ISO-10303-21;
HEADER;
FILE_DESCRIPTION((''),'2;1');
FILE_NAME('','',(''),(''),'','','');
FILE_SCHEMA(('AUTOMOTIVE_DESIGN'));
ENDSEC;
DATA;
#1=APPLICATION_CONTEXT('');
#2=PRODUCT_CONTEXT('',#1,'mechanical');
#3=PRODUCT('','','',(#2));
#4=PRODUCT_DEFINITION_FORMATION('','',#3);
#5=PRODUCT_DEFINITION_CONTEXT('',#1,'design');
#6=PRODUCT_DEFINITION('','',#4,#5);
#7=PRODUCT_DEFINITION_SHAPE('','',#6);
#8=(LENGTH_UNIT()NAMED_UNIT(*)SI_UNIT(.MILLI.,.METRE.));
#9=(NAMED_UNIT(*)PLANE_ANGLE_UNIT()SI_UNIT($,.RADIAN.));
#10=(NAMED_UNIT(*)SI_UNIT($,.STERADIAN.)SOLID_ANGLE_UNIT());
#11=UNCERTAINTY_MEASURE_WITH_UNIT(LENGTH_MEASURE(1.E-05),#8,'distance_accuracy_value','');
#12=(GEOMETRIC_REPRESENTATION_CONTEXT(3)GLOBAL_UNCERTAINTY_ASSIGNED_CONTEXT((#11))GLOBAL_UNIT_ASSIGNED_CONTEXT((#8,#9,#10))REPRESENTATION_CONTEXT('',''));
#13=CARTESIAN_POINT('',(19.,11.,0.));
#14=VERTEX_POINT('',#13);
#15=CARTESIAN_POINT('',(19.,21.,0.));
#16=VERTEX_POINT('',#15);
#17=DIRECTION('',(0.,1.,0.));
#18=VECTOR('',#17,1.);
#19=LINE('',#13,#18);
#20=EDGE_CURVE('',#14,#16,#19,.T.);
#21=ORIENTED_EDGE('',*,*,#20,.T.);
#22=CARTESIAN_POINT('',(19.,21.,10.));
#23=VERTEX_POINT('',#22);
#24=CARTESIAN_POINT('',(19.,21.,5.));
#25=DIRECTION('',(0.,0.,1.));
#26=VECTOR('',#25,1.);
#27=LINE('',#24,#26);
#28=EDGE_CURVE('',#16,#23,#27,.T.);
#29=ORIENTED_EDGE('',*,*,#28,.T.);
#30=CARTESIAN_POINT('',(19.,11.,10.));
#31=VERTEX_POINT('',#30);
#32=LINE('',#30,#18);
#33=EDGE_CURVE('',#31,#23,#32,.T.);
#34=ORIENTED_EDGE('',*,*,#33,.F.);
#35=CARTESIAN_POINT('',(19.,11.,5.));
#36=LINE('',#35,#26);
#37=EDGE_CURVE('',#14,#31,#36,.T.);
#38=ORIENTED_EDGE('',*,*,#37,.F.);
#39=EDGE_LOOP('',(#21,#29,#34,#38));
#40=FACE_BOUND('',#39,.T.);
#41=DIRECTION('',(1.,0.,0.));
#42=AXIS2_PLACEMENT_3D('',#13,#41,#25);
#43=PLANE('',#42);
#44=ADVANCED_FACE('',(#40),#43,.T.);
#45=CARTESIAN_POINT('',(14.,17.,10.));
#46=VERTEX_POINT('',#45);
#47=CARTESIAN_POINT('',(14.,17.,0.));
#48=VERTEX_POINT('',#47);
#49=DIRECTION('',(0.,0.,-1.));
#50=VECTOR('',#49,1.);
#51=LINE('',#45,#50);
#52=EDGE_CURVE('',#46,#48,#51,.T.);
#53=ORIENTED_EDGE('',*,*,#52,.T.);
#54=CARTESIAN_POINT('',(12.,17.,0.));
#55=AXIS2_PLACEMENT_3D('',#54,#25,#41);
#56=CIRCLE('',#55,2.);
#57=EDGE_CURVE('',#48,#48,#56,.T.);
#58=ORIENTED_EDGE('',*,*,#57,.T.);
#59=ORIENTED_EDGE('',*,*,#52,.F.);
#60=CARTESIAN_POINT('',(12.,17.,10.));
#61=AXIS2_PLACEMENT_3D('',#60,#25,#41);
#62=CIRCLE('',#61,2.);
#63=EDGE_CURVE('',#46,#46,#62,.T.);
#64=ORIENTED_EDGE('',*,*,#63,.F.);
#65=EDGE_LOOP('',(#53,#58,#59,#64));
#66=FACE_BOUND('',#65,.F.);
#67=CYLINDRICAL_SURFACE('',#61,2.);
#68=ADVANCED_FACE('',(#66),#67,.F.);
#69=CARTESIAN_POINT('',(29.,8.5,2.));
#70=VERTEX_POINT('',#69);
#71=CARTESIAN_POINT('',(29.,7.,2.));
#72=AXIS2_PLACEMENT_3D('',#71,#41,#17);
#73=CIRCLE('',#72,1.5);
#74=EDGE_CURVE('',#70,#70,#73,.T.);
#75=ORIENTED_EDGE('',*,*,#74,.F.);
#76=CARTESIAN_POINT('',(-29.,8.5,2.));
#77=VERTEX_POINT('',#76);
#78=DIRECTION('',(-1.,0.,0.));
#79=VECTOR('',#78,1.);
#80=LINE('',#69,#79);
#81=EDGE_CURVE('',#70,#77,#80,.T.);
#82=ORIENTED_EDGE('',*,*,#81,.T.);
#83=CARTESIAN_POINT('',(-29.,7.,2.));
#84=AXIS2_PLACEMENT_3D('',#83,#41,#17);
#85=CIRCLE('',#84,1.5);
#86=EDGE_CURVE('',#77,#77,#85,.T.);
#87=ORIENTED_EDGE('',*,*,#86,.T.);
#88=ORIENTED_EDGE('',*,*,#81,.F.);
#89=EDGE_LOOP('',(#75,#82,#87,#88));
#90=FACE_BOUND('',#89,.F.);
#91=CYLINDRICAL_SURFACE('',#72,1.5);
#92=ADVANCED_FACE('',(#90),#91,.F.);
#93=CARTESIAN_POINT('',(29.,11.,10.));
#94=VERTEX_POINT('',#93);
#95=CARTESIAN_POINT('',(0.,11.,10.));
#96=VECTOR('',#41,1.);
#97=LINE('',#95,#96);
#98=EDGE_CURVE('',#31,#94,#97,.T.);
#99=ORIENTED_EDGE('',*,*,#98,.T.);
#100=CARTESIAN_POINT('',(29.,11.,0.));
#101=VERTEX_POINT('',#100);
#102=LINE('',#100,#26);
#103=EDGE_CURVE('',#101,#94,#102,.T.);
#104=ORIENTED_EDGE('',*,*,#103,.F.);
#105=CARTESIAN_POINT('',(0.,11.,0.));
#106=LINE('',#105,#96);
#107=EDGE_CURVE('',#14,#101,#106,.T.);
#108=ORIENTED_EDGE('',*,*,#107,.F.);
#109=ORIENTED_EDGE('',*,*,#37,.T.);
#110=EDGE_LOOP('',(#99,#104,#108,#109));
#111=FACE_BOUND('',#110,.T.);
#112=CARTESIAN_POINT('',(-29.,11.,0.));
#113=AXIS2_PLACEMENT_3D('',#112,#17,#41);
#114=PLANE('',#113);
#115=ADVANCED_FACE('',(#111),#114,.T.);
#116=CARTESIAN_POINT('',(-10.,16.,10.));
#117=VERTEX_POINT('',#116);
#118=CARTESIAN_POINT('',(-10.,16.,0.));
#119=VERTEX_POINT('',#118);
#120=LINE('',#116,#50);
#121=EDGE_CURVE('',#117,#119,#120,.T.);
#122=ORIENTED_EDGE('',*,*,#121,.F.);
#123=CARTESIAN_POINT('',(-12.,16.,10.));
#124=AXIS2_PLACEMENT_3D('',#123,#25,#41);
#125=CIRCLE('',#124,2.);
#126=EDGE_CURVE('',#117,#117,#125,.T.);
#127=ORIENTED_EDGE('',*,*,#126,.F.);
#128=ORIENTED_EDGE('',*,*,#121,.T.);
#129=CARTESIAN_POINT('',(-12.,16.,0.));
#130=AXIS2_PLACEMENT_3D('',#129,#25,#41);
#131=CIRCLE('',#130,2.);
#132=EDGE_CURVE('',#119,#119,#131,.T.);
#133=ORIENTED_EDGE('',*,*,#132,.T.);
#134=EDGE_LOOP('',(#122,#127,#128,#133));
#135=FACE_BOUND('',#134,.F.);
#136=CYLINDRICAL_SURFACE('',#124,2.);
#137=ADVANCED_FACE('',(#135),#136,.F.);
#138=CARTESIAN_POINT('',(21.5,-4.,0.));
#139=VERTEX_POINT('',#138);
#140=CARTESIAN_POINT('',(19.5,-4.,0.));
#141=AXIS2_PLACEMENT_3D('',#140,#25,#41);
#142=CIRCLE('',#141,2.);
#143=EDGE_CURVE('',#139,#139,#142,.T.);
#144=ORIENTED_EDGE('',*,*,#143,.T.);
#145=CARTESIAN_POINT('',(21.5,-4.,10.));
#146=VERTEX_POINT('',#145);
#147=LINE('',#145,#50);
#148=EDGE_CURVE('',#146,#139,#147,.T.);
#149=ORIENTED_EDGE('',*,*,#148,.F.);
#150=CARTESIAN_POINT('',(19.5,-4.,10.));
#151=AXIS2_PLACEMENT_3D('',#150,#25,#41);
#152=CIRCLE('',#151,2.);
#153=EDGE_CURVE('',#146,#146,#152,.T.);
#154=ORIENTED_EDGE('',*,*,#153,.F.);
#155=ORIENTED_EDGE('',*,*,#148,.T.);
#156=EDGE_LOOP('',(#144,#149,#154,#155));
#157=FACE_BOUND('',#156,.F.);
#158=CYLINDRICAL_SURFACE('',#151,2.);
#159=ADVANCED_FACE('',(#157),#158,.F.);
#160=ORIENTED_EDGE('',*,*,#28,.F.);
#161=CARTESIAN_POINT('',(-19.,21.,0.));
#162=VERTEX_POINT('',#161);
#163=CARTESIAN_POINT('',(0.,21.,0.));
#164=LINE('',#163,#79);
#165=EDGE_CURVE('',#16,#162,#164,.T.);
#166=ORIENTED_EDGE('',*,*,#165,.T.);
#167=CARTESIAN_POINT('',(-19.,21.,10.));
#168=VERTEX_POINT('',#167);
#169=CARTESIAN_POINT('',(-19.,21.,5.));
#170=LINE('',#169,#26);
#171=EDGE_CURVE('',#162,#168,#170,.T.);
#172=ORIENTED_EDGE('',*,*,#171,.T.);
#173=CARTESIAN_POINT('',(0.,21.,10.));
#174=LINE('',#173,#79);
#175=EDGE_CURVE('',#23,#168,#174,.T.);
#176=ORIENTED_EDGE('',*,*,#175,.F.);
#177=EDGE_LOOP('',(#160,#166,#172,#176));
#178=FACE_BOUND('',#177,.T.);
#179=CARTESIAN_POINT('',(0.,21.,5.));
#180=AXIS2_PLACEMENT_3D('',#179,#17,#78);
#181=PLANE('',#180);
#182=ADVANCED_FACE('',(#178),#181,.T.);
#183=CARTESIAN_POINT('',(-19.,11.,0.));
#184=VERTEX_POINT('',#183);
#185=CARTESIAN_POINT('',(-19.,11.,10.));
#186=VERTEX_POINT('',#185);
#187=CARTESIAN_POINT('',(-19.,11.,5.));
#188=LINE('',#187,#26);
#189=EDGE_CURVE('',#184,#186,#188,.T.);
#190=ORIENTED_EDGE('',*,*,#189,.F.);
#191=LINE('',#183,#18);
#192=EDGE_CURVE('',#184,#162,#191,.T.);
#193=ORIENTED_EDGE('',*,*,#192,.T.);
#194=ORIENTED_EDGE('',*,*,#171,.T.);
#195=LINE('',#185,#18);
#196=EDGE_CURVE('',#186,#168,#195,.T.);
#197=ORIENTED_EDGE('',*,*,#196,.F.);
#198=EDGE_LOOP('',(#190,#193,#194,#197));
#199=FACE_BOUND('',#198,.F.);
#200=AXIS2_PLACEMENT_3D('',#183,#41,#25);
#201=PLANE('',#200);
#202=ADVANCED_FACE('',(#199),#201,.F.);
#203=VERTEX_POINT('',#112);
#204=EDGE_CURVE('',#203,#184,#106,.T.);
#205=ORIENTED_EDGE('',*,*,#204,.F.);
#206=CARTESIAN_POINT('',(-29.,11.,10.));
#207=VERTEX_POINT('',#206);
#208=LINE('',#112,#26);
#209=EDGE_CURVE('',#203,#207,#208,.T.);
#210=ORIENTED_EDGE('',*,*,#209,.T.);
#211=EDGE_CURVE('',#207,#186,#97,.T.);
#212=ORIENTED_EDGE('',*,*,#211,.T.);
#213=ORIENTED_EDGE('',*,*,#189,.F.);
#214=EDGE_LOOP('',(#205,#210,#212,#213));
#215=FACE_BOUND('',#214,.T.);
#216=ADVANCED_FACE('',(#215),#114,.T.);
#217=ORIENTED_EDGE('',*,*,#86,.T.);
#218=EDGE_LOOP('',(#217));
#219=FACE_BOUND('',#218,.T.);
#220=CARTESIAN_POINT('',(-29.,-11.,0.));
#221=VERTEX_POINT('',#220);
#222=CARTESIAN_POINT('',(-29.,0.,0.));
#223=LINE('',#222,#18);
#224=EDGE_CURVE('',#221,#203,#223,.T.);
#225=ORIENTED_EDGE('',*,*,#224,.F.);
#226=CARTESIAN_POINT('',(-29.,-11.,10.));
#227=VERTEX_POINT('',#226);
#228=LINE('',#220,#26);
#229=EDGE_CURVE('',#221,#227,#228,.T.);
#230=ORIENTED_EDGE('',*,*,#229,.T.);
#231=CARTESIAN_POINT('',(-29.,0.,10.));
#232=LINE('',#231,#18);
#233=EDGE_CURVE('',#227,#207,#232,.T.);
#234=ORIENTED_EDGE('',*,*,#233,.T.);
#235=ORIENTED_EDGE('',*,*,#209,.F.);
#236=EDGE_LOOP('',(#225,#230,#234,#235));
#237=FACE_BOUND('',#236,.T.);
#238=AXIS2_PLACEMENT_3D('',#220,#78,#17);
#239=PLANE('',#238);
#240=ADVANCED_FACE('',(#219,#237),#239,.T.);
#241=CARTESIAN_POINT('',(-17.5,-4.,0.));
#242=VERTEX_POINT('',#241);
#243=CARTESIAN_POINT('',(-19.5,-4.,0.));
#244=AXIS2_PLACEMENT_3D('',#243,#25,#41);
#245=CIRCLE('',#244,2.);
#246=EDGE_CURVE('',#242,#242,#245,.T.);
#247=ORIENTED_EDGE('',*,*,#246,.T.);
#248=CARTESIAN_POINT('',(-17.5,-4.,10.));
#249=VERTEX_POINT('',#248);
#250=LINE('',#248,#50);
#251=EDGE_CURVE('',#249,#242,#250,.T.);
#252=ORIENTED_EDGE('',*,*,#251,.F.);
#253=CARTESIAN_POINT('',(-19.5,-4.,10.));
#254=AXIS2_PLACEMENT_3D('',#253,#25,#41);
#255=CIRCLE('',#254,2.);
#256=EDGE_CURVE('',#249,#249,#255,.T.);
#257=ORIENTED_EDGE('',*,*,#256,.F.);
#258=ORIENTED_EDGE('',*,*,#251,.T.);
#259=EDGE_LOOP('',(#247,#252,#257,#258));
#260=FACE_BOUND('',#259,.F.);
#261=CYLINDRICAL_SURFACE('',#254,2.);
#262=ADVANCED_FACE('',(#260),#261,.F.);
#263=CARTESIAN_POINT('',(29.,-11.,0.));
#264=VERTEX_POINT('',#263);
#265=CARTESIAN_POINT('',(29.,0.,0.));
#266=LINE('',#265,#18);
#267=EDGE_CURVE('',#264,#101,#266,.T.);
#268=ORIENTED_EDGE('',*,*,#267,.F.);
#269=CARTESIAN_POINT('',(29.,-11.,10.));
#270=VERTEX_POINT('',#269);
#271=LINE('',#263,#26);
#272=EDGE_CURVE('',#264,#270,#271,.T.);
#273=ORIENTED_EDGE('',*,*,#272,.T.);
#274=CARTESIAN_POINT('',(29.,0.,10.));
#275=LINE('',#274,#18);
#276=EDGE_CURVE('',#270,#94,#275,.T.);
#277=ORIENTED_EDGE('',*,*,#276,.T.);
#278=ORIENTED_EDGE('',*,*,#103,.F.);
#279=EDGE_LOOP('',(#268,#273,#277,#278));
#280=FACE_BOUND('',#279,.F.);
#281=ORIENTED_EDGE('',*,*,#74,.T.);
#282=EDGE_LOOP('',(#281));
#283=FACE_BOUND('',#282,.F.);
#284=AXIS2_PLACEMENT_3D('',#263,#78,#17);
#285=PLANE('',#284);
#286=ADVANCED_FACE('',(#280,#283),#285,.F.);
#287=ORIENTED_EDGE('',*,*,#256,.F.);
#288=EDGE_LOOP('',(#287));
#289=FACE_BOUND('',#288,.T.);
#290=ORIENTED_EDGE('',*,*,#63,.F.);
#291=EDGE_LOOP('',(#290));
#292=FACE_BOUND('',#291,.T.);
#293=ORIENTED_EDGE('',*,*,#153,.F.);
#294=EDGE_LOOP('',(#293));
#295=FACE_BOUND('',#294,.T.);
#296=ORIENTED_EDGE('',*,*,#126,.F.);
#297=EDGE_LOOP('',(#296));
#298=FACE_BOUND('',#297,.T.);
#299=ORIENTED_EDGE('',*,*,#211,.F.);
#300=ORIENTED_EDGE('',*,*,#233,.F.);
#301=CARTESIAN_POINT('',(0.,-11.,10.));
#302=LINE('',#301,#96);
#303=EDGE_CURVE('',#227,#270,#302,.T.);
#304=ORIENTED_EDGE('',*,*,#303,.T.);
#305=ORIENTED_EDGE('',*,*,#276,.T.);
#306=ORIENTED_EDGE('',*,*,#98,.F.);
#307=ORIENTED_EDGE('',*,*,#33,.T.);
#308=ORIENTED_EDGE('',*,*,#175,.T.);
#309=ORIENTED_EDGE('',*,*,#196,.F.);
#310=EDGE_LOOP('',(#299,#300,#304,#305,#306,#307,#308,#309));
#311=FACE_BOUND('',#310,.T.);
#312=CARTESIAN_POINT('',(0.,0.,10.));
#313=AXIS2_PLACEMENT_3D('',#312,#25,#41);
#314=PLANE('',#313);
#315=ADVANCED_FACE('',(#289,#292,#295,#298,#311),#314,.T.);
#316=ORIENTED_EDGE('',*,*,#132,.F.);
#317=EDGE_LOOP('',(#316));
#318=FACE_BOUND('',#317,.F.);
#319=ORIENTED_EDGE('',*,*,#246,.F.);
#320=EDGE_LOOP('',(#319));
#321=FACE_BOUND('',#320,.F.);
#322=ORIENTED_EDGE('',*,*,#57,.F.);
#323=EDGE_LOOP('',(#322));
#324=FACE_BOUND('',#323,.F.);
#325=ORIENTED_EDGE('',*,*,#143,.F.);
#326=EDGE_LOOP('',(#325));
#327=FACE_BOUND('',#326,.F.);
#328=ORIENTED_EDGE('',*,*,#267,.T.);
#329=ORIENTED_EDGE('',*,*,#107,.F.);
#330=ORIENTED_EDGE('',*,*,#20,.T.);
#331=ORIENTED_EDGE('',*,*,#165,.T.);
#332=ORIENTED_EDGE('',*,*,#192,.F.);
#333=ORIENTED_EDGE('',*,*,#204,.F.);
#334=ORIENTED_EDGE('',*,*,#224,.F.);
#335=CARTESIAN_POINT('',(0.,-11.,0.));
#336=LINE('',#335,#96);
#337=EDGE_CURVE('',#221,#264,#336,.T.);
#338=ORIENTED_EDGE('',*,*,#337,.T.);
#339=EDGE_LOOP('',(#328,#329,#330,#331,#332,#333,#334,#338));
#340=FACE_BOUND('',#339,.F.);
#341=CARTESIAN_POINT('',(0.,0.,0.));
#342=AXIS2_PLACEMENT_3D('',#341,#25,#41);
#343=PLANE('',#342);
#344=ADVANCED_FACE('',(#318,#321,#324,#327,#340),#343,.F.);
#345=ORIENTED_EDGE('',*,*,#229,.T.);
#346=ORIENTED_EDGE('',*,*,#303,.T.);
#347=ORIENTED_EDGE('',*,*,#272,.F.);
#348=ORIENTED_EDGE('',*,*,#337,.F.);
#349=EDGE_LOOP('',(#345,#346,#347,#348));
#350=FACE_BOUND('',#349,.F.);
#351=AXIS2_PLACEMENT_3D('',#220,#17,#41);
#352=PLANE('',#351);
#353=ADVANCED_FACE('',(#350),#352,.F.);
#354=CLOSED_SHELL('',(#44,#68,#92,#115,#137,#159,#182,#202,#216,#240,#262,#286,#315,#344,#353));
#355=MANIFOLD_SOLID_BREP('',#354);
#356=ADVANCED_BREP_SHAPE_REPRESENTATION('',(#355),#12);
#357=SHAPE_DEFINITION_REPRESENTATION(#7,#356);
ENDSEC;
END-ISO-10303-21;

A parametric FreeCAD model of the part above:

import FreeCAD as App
import Part
import Sketcher

V = App.Vector
Q = App.Units.Quantity

doc = App.newDocument("Part")
body = doc.addObject("PartDesign::Body", "Body")

# Sketch on XY plane
sketch1 = doc.addObject("Sketcher::SketchObject", "Sketch")
body.addObject(sketch1)
sketch1.AttachmentSupport = (doc.XY_Plane, [""])
sketch1.MapMode = "FlatFace"
sketch1.addGeometry([
    Part.LineSegment(V(-29, 11, 0), V(-29, -11, 0)),
    Part.LineSegment(V(-29, -11, 0), V(29, -11, 0)),
    Part.LineSegment(V(29, -11, 0), V(29, 11, 0)),
    Part.LineSegment(V(29, 11, 0), V(-29, 11, 0)),
], False)
sketch1.addConstraint([
    Sketcher.Constraint("Coincident", 0, 2, 1, 1),
    Sketcher.Constraint("Coincident", 1, 2, 2, 1),
    Sketcher.Constraint("Coincident", 2, 2, 3, 1),
    Sketcher.Constraint("Coincident", 3, 2, 0, 1),
    Sketcher.Constraint("Vertical", 0),
    Sketcher.Constraint("Horizontal", 1),
    Sketcher.Constraint("Vertical", 2),
    Sketcher.Constraint("Horizontal", 3),
    Sketcher.Constraint("Symmetric", 0, 2, 2, 2, -1, 1),
    Sketcher.Constraint("DistanceX", 1, 1, 1, 2, Q("58 mm")),
    Sketcher.Constraint("DistanceY", 0, 2, 0, 1, Q("22 mm")),
])
pad1 = doc.addObject("PartDesign::Pad", "Pad")
body.addObject(pad1)
pad1.Profile = sketch1
pad1.Length = 10

# Sketch on XY plane
sketch2 = doc.addObject("Sketcher::SketchObject", "Sketch001")
body.addObject(sketch2)
sketch2.AttachmentSupport = (doc.XY_Plane, [""])
sketch2.MapMode = "FlatFace"
sketch2.AttachmentOffset = App.Placement(V(0, 0, 10), App.Rotation())
sketch2.addGeometry([
    Part.Circle(V(-19.5, -4, 0), V(0, 0, 1), 2),
    Part.Circle(V(19.5, -4, 0), V(0, 0, 1), 2),
], False)
sketch2.addConstraint([
    Sketcher.Constraint("Equal", 0, 1),
    Sketcher.Constraint("Symmetric", 0, 3, 1, 3, -2),
    Sketcher.Constraint("Diameter", 0, Q("4 mm")),
    Sketcher.Constraint("DistanceY", 0, 3, -1, 1, Q("4 mm")),
    Sketcher.Constraint("DistanceX", 0, 3, 1, 3, Q("39 mm")),
])
pocket1 = doc.addObject("PartDesign::Pocket", "Pocket")
body.addObject(pocket1)
pocket1.Profile = sketch2
pocket1.Length = 25

# Sketch on YZ plane
sketch3 = doc.addObject("Sketcher::SketchObject", "Sketch002")
body.addObject(sketch3)
sketch3.AttachmentSupport = (doc.YZ_Plane, [""])
sketch3.MapMode = "FlatFace"
sketch3.AttachmentOffset = App.Placement(V(0, 0, 29), App.Rotation())
sketch3.addGeometry(Part.Circle(V(7, 2, 0), V(0, 0, 1), 1.5), False)
sketch3.addConstraint([
    Sketcher.Constraint("Diameter", 0, Q("3 mm")),
    Sketcher.Constraint("DistanceX", -1, 1, 0, 3, Q("7 mm")),
    Sketcher.Constraint("DistanceY", -1, 1, 0, 3, Q("2 mm")),
])
pocket2 = doc.addObject("PartDesign::Pocket", "Pocket001")
body.addObject(pocket2)
pocket2.Profile = sketch3
pocket2.Length = 500

# Sketch on XZ plane
sketch4 = doc.addObject("Sketcher::SketchObject", "Sketch003")
body.addObject(sketch4)
sketch4.AttachmentSupport = (doc.XZ_Plane, [""])
sketch4.MapMode = "FlatFace"
sketch4.AttachmentOffset = App.Placement(V(0, 0, -11), App.Rotation())
sketch4.addGeometry([
    Part.LineSegment(V(19, 10, 0), V(19, 0, 0)),
    Part.LineSegment(V(19, 0, 0), V(-19, 0, 0)),
    Part.LineSegment(V(-19, 0, 0), V(-19, 10, 0)),
    Part.LineSegment(V(-19, 10, 0), V(19, 10, 0)),
], False)
sketch4.addConstraint([
    Sketcher.Constraint("Coincident", 0, 2, 1, 1),
    Sketcher.Constraint("Coincident", 1, 2, 2, 1),
    Sketcher.Constraint("Coincident", 2, 2, 3, 1),
    Sketcher.Constraint("Coincident", 3, 2, 0, 1),
    Sketcher.Constraint("Vertical", 0),
    Sketcher.Constraint("Horizontal", 1),
    Sketcher.Constraint("Vertical", 2),
    Sketcher.Constraint("Horizontal", 3),
    Sketcher.Constraint("Symmetric", 0, 2, 1, 2, -1, 1),
    Sketcher.Constraint("DistanceX", 1, 2, 1, 1, Q("38 mm")),
    Sketcher.Constraint("DistanceY", 0, 2, 0, 1, Q("10 mm")),
])
pad2 = doc.addObject("PartDesign::Pad", "Pad001")
body.addObject(pad2)
pad2.Profile = sketch4
pad2.Length = 10
pad2.Reversed = True

# Sketch on XY plane
sketch5 = doc.addObject("Sketcher::SketchObject", "Sketch004")
body.addObject(sketch5)
sketch5.AttachmentSupport = (doc.XY_Plane, [""])
sketch5.MapMode = "FlatFace"
sketch5.AttachmentOffset = App.Placement(V(0, 0, 10), App.Rotation())
sketch5.addGeometry([
    Part.Circle(V(12, 17, 0), V(0, 0, 1), 2),
    Part.Circle(V(-12, 16, 0), V(0, 0, 1), 2),
], False)
sketch5.addConstraint([
    Sketcher.Constraint("Equal", 0, 1),
    Sketcher.Constraint("Diameter", 0, Q("4 mm")),
    Sketcher.Constraint("DistanceX", -1, 1, 0, 3, Q("12 mm")),
    Sketcher.Constraint("DistanceY", -1, 1, 0, 3, Q("17 mm")),
    Sketcher.Constraint("DistanceX", 1, 3, -1, 1, Q("12 mm")),
    Sketcher.Constraint("DistanceY", -1, 1, 1, 3, Q("16 mm")),
])
pocket3 = doc.addObject("PartDesign::Pocket", "Pocket002")
body.addObject(pocket3)
pocket3.Profile = sketch5
pocket3.Length = 25

doc.recompute()
